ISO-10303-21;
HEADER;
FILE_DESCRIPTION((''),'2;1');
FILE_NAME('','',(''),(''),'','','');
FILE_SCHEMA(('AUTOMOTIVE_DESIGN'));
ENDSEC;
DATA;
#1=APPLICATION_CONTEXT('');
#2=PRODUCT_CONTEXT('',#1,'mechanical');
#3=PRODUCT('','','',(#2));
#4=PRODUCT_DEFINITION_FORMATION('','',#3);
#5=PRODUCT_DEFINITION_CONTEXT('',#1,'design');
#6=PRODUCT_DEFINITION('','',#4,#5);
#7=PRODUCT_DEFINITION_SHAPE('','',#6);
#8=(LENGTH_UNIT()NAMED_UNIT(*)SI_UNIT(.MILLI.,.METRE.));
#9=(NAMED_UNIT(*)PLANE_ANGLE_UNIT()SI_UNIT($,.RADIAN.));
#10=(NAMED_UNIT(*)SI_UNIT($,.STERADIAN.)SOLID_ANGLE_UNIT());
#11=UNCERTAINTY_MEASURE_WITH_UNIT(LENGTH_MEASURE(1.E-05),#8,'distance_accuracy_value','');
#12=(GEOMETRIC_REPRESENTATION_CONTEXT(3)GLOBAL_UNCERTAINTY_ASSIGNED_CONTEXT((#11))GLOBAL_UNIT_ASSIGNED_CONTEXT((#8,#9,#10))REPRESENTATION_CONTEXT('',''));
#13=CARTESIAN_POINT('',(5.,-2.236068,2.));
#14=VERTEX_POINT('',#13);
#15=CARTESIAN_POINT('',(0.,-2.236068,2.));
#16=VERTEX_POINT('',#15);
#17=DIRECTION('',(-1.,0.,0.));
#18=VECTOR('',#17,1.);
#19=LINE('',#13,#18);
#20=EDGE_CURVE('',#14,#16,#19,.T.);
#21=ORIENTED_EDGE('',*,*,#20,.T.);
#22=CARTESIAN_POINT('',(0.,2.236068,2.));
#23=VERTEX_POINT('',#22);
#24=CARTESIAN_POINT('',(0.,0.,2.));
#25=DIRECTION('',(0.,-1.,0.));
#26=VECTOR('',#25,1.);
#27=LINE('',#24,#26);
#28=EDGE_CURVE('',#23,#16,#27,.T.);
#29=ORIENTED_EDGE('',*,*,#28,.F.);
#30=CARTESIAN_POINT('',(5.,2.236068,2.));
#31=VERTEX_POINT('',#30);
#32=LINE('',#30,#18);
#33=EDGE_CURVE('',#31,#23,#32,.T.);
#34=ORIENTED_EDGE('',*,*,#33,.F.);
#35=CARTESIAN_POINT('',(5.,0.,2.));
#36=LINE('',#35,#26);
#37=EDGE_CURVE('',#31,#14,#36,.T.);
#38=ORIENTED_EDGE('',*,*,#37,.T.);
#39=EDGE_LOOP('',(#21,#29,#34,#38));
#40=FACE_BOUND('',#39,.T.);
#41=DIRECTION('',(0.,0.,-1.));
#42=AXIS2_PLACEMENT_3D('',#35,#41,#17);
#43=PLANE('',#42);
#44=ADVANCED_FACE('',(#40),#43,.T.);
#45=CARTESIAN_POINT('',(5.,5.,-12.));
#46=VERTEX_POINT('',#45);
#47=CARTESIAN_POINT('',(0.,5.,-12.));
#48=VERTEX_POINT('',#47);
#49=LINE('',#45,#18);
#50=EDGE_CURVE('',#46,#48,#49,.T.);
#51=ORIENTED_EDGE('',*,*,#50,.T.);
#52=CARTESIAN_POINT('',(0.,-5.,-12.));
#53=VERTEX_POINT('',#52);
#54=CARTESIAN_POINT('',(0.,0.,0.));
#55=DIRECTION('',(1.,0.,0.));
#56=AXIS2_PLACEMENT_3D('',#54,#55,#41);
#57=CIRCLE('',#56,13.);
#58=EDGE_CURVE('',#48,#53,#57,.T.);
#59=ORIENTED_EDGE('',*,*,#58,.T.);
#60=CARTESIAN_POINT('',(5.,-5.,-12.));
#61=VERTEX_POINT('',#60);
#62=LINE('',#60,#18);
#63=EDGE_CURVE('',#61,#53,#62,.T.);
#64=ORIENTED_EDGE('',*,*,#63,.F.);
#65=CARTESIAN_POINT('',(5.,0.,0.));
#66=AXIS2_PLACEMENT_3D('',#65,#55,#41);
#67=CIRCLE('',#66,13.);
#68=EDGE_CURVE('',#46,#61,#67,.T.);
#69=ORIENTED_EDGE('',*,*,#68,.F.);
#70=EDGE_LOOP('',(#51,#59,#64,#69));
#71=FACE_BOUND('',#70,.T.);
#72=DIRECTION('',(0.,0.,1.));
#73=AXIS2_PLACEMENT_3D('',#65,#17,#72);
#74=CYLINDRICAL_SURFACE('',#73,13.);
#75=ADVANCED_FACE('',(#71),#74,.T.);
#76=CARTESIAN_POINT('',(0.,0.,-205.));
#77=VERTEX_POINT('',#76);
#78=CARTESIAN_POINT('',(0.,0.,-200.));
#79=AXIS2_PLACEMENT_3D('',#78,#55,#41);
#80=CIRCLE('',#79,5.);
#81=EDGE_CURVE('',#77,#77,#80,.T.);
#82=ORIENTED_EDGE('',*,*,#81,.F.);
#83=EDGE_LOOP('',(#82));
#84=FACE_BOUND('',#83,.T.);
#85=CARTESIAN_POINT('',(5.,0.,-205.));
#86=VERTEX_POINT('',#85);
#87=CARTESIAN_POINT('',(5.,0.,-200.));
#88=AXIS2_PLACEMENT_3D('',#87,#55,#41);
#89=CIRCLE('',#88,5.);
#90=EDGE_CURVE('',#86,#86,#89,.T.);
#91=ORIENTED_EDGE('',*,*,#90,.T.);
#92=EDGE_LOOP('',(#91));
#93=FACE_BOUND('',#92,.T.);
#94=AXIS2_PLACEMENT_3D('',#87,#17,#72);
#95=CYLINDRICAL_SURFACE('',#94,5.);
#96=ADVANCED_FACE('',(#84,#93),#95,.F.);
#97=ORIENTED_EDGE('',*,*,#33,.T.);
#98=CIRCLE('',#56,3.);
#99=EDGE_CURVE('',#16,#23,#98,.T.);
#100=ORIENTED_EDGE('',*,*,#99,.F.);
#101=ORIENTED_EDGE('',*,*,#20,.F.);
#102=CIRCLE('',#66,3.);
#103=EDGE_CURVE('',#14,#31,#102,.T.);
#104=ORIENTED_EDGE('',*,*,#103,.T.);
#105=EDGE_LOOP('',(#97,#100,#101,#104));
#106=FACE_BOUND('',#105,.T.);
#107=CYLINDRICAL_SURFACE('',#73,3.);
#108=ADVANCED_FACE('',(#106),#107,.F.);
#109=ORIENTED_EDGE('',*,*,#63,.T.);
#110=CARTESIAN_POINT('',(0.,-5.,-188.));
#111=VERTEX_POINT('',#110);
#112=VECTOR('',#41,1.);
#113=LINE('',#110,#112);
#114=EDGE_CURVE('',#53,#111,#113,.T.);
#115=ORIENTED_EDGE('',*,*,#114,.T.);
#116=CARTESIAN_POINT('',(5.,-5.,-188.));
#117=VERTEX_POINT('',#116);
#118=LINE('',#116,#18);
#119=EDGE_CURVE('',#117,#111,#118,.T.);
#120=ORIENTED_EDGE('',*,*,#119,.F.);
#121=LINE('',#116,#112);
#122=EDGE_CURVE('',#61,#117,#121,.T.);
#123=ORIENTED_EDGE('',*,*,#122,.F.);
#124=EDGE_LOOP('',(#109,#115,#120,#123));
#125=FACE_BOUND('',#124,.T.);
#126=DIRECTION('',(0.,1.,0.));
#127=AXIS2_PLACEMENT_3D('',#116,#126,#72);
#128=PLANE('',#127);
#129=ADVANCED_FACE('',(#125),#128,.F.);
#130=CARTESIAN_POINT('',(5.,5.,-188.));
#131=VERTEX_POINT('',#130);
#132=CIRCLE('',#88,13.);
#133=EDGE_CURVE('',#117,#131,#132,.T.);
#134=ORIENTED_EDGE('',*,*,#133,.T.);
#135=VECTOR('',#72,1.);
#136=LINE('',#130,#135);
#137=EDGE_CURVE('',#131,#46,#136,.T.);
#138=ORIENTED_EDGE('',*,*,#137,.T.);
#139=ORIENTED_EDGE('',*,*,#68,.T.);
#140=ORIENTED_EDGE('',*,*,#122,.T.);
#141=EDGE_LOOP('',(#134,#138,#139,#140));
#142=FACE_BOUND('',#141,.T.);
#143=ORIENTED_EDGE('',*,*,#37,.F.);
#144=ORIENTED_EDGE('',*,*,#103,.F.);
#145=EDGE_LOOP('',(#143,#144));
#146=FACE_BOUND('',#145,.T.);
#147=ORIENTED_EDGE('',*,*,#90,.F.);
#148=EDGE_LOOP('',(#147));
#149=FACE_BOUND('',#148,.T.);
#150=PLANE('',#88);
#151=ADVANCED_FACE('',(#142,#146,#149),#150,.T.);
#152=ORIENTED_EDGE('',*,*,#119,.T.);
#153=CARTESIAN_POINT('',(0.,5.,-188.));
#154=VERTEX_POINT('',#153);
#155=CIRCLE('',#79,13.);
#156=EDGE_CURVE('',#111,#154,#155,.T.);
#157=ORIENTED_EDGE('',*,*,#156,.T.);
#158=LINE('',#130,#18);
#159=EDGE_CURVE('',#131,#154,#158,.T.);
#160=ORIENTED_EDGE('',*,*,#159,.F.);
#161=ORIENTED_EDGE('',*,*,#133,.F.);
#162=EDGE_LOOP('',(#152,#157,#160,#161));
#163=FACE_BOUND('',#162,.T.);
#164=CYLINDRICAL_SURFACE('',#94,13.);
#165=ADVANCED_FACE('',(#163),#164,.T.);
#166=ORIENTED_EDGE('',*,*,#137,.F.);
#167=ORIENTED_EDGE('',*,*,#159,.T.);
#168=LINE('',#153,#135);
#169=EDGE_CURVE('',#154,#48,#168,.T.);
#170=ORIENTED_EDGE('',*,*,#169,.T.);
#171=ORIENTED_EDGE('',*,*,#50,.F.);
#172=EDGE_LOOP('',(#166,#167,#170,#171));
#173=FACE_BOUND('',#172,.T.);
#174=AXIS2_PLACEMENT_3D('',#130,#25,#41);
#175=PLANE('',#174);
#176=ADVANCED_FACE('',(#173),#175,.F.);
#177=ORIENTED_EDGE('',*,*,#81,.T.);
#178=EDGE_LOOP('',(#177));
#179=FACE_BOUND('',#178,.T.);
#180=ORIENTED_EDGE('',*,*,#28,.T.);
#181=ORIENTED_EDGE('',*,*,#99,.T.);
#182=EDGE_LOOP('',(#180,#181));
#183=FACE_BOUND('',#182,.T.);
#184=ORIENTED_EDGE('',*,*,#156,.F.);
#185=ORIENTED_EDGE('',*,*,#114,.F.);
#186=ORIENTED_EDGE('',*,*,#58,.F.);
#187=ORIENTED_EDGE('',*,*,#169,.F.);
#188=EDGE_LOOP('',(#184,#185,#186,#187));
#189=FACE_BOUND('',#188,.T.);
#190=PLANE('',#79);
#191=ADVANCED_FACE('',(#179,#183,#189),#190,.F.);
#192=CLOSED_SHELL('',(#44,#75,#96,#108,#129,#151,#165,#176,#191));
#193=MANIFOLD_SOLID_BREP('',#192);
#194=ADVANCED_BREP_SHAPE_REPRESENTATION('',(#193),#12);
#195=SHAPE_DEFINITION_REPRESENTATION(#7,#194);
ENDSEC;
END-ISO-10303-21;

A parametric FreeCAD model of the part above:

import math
import FreeCAD as App
import Part
import Sketcher
from FreeCAD import Vector
Q = App.Units.Quantity

doc = App.newDocument("Part")
body = doc.addObject("PartDesign::Body", "Body")

sketch1 = body.newObject("Sketcher::SketchObject", "Sketch")
sketch1.AttachmentSupport = (doc.getObject("YZ_Plane"), [""])
sketch1.MapMode = "FlatFace"
sketch1.addGeometry([
    Part.LineSegment(Vector(-5, -12, 0), Vector(-5, -188, 0)),
    Part.ArcOfCircle(Part.Circle(Vector(0, -200, 0), Vector(0, 0, 1), 13), math.radians(113), math.radians(427)),
    Part.LineSegment(Vector(5, -188, 0), Vector(5, -12, 0)),
    Part.ArcOfCircle(Part.Circle(Vector(0, 0, 0), Vector(0, 0, 1), 13), math.radians(-67), math.radians(247)),
    Part.Circle(Vector(0, -200, 0), Vector(0, 0, 1), 5),
    Part.ArcOfCircle(Part.Circle(Vector(0, 0, 0), Vector(0, 0, 1), 3), math.radians(138), math.radians(402)),
    Part.LineSegment(Vector(-2.2, 2, 0), Vector(2.2, 2, 0)),
], False)
sketch1.addConstraint([
    Sketcher.Constraint("Coincident", 0, 2, 1, 1),
    Sketcher.Constraint("Coincident", 1, 2, 2, 1),
    Sketcher.Constraint("Coincident", 2, 2, 3, 1),
    Sketcher.Constraint("Coincident", 3, 2, 0, 1),
    Sketcher.Constraint("Coincident", 5, 1, 6, 1),
    Sketcher.Constraint("Coincident", 6, 2, 5, 2),
    Sketcher.Constraint("Vertical", 0),
    Sketcher.Constraint("Vertical", 2),
    Sketcher.Constraint("Horizontal", 6),
    Sketcher.Constraint("Coincident", 3, 3, -1, 1),
    Sketcher.Constraint("Coincident", 5, 3, -1, 1),
    Sketcher.Constraint("Coincident", 4, 3, 1, 3),
    Sketcher.Constraint("Equal", 1, 3),
    Sketcher.Constraint("Symmetric", 0, 2, 1, 2, -2),
    Sketcher.Constraint("Diameter", 4, Q("10 mm")),
    Sketcher.Constraint("Radius", 1, Q("13 mm")),
    Sketcher.Constraint("Radius", 5, Q("3 mm")),
    Sketcher.Constraint("DistanceY", 0, 2, 0, 1, Q("176 mm")),
    Sketcher.Constraint("DistanceY", 1, 3, -1, 1, Q("200 mm")),
    Sketcher.Constraint("DistanceY", -1, 1, 5, 1, Q("2 mm")),
])
pad1 = body.newObject("PartDesign::Pad", "Pad")
pad1.Profile = sketch1
pad1.Length = 5

doc.recompute()
